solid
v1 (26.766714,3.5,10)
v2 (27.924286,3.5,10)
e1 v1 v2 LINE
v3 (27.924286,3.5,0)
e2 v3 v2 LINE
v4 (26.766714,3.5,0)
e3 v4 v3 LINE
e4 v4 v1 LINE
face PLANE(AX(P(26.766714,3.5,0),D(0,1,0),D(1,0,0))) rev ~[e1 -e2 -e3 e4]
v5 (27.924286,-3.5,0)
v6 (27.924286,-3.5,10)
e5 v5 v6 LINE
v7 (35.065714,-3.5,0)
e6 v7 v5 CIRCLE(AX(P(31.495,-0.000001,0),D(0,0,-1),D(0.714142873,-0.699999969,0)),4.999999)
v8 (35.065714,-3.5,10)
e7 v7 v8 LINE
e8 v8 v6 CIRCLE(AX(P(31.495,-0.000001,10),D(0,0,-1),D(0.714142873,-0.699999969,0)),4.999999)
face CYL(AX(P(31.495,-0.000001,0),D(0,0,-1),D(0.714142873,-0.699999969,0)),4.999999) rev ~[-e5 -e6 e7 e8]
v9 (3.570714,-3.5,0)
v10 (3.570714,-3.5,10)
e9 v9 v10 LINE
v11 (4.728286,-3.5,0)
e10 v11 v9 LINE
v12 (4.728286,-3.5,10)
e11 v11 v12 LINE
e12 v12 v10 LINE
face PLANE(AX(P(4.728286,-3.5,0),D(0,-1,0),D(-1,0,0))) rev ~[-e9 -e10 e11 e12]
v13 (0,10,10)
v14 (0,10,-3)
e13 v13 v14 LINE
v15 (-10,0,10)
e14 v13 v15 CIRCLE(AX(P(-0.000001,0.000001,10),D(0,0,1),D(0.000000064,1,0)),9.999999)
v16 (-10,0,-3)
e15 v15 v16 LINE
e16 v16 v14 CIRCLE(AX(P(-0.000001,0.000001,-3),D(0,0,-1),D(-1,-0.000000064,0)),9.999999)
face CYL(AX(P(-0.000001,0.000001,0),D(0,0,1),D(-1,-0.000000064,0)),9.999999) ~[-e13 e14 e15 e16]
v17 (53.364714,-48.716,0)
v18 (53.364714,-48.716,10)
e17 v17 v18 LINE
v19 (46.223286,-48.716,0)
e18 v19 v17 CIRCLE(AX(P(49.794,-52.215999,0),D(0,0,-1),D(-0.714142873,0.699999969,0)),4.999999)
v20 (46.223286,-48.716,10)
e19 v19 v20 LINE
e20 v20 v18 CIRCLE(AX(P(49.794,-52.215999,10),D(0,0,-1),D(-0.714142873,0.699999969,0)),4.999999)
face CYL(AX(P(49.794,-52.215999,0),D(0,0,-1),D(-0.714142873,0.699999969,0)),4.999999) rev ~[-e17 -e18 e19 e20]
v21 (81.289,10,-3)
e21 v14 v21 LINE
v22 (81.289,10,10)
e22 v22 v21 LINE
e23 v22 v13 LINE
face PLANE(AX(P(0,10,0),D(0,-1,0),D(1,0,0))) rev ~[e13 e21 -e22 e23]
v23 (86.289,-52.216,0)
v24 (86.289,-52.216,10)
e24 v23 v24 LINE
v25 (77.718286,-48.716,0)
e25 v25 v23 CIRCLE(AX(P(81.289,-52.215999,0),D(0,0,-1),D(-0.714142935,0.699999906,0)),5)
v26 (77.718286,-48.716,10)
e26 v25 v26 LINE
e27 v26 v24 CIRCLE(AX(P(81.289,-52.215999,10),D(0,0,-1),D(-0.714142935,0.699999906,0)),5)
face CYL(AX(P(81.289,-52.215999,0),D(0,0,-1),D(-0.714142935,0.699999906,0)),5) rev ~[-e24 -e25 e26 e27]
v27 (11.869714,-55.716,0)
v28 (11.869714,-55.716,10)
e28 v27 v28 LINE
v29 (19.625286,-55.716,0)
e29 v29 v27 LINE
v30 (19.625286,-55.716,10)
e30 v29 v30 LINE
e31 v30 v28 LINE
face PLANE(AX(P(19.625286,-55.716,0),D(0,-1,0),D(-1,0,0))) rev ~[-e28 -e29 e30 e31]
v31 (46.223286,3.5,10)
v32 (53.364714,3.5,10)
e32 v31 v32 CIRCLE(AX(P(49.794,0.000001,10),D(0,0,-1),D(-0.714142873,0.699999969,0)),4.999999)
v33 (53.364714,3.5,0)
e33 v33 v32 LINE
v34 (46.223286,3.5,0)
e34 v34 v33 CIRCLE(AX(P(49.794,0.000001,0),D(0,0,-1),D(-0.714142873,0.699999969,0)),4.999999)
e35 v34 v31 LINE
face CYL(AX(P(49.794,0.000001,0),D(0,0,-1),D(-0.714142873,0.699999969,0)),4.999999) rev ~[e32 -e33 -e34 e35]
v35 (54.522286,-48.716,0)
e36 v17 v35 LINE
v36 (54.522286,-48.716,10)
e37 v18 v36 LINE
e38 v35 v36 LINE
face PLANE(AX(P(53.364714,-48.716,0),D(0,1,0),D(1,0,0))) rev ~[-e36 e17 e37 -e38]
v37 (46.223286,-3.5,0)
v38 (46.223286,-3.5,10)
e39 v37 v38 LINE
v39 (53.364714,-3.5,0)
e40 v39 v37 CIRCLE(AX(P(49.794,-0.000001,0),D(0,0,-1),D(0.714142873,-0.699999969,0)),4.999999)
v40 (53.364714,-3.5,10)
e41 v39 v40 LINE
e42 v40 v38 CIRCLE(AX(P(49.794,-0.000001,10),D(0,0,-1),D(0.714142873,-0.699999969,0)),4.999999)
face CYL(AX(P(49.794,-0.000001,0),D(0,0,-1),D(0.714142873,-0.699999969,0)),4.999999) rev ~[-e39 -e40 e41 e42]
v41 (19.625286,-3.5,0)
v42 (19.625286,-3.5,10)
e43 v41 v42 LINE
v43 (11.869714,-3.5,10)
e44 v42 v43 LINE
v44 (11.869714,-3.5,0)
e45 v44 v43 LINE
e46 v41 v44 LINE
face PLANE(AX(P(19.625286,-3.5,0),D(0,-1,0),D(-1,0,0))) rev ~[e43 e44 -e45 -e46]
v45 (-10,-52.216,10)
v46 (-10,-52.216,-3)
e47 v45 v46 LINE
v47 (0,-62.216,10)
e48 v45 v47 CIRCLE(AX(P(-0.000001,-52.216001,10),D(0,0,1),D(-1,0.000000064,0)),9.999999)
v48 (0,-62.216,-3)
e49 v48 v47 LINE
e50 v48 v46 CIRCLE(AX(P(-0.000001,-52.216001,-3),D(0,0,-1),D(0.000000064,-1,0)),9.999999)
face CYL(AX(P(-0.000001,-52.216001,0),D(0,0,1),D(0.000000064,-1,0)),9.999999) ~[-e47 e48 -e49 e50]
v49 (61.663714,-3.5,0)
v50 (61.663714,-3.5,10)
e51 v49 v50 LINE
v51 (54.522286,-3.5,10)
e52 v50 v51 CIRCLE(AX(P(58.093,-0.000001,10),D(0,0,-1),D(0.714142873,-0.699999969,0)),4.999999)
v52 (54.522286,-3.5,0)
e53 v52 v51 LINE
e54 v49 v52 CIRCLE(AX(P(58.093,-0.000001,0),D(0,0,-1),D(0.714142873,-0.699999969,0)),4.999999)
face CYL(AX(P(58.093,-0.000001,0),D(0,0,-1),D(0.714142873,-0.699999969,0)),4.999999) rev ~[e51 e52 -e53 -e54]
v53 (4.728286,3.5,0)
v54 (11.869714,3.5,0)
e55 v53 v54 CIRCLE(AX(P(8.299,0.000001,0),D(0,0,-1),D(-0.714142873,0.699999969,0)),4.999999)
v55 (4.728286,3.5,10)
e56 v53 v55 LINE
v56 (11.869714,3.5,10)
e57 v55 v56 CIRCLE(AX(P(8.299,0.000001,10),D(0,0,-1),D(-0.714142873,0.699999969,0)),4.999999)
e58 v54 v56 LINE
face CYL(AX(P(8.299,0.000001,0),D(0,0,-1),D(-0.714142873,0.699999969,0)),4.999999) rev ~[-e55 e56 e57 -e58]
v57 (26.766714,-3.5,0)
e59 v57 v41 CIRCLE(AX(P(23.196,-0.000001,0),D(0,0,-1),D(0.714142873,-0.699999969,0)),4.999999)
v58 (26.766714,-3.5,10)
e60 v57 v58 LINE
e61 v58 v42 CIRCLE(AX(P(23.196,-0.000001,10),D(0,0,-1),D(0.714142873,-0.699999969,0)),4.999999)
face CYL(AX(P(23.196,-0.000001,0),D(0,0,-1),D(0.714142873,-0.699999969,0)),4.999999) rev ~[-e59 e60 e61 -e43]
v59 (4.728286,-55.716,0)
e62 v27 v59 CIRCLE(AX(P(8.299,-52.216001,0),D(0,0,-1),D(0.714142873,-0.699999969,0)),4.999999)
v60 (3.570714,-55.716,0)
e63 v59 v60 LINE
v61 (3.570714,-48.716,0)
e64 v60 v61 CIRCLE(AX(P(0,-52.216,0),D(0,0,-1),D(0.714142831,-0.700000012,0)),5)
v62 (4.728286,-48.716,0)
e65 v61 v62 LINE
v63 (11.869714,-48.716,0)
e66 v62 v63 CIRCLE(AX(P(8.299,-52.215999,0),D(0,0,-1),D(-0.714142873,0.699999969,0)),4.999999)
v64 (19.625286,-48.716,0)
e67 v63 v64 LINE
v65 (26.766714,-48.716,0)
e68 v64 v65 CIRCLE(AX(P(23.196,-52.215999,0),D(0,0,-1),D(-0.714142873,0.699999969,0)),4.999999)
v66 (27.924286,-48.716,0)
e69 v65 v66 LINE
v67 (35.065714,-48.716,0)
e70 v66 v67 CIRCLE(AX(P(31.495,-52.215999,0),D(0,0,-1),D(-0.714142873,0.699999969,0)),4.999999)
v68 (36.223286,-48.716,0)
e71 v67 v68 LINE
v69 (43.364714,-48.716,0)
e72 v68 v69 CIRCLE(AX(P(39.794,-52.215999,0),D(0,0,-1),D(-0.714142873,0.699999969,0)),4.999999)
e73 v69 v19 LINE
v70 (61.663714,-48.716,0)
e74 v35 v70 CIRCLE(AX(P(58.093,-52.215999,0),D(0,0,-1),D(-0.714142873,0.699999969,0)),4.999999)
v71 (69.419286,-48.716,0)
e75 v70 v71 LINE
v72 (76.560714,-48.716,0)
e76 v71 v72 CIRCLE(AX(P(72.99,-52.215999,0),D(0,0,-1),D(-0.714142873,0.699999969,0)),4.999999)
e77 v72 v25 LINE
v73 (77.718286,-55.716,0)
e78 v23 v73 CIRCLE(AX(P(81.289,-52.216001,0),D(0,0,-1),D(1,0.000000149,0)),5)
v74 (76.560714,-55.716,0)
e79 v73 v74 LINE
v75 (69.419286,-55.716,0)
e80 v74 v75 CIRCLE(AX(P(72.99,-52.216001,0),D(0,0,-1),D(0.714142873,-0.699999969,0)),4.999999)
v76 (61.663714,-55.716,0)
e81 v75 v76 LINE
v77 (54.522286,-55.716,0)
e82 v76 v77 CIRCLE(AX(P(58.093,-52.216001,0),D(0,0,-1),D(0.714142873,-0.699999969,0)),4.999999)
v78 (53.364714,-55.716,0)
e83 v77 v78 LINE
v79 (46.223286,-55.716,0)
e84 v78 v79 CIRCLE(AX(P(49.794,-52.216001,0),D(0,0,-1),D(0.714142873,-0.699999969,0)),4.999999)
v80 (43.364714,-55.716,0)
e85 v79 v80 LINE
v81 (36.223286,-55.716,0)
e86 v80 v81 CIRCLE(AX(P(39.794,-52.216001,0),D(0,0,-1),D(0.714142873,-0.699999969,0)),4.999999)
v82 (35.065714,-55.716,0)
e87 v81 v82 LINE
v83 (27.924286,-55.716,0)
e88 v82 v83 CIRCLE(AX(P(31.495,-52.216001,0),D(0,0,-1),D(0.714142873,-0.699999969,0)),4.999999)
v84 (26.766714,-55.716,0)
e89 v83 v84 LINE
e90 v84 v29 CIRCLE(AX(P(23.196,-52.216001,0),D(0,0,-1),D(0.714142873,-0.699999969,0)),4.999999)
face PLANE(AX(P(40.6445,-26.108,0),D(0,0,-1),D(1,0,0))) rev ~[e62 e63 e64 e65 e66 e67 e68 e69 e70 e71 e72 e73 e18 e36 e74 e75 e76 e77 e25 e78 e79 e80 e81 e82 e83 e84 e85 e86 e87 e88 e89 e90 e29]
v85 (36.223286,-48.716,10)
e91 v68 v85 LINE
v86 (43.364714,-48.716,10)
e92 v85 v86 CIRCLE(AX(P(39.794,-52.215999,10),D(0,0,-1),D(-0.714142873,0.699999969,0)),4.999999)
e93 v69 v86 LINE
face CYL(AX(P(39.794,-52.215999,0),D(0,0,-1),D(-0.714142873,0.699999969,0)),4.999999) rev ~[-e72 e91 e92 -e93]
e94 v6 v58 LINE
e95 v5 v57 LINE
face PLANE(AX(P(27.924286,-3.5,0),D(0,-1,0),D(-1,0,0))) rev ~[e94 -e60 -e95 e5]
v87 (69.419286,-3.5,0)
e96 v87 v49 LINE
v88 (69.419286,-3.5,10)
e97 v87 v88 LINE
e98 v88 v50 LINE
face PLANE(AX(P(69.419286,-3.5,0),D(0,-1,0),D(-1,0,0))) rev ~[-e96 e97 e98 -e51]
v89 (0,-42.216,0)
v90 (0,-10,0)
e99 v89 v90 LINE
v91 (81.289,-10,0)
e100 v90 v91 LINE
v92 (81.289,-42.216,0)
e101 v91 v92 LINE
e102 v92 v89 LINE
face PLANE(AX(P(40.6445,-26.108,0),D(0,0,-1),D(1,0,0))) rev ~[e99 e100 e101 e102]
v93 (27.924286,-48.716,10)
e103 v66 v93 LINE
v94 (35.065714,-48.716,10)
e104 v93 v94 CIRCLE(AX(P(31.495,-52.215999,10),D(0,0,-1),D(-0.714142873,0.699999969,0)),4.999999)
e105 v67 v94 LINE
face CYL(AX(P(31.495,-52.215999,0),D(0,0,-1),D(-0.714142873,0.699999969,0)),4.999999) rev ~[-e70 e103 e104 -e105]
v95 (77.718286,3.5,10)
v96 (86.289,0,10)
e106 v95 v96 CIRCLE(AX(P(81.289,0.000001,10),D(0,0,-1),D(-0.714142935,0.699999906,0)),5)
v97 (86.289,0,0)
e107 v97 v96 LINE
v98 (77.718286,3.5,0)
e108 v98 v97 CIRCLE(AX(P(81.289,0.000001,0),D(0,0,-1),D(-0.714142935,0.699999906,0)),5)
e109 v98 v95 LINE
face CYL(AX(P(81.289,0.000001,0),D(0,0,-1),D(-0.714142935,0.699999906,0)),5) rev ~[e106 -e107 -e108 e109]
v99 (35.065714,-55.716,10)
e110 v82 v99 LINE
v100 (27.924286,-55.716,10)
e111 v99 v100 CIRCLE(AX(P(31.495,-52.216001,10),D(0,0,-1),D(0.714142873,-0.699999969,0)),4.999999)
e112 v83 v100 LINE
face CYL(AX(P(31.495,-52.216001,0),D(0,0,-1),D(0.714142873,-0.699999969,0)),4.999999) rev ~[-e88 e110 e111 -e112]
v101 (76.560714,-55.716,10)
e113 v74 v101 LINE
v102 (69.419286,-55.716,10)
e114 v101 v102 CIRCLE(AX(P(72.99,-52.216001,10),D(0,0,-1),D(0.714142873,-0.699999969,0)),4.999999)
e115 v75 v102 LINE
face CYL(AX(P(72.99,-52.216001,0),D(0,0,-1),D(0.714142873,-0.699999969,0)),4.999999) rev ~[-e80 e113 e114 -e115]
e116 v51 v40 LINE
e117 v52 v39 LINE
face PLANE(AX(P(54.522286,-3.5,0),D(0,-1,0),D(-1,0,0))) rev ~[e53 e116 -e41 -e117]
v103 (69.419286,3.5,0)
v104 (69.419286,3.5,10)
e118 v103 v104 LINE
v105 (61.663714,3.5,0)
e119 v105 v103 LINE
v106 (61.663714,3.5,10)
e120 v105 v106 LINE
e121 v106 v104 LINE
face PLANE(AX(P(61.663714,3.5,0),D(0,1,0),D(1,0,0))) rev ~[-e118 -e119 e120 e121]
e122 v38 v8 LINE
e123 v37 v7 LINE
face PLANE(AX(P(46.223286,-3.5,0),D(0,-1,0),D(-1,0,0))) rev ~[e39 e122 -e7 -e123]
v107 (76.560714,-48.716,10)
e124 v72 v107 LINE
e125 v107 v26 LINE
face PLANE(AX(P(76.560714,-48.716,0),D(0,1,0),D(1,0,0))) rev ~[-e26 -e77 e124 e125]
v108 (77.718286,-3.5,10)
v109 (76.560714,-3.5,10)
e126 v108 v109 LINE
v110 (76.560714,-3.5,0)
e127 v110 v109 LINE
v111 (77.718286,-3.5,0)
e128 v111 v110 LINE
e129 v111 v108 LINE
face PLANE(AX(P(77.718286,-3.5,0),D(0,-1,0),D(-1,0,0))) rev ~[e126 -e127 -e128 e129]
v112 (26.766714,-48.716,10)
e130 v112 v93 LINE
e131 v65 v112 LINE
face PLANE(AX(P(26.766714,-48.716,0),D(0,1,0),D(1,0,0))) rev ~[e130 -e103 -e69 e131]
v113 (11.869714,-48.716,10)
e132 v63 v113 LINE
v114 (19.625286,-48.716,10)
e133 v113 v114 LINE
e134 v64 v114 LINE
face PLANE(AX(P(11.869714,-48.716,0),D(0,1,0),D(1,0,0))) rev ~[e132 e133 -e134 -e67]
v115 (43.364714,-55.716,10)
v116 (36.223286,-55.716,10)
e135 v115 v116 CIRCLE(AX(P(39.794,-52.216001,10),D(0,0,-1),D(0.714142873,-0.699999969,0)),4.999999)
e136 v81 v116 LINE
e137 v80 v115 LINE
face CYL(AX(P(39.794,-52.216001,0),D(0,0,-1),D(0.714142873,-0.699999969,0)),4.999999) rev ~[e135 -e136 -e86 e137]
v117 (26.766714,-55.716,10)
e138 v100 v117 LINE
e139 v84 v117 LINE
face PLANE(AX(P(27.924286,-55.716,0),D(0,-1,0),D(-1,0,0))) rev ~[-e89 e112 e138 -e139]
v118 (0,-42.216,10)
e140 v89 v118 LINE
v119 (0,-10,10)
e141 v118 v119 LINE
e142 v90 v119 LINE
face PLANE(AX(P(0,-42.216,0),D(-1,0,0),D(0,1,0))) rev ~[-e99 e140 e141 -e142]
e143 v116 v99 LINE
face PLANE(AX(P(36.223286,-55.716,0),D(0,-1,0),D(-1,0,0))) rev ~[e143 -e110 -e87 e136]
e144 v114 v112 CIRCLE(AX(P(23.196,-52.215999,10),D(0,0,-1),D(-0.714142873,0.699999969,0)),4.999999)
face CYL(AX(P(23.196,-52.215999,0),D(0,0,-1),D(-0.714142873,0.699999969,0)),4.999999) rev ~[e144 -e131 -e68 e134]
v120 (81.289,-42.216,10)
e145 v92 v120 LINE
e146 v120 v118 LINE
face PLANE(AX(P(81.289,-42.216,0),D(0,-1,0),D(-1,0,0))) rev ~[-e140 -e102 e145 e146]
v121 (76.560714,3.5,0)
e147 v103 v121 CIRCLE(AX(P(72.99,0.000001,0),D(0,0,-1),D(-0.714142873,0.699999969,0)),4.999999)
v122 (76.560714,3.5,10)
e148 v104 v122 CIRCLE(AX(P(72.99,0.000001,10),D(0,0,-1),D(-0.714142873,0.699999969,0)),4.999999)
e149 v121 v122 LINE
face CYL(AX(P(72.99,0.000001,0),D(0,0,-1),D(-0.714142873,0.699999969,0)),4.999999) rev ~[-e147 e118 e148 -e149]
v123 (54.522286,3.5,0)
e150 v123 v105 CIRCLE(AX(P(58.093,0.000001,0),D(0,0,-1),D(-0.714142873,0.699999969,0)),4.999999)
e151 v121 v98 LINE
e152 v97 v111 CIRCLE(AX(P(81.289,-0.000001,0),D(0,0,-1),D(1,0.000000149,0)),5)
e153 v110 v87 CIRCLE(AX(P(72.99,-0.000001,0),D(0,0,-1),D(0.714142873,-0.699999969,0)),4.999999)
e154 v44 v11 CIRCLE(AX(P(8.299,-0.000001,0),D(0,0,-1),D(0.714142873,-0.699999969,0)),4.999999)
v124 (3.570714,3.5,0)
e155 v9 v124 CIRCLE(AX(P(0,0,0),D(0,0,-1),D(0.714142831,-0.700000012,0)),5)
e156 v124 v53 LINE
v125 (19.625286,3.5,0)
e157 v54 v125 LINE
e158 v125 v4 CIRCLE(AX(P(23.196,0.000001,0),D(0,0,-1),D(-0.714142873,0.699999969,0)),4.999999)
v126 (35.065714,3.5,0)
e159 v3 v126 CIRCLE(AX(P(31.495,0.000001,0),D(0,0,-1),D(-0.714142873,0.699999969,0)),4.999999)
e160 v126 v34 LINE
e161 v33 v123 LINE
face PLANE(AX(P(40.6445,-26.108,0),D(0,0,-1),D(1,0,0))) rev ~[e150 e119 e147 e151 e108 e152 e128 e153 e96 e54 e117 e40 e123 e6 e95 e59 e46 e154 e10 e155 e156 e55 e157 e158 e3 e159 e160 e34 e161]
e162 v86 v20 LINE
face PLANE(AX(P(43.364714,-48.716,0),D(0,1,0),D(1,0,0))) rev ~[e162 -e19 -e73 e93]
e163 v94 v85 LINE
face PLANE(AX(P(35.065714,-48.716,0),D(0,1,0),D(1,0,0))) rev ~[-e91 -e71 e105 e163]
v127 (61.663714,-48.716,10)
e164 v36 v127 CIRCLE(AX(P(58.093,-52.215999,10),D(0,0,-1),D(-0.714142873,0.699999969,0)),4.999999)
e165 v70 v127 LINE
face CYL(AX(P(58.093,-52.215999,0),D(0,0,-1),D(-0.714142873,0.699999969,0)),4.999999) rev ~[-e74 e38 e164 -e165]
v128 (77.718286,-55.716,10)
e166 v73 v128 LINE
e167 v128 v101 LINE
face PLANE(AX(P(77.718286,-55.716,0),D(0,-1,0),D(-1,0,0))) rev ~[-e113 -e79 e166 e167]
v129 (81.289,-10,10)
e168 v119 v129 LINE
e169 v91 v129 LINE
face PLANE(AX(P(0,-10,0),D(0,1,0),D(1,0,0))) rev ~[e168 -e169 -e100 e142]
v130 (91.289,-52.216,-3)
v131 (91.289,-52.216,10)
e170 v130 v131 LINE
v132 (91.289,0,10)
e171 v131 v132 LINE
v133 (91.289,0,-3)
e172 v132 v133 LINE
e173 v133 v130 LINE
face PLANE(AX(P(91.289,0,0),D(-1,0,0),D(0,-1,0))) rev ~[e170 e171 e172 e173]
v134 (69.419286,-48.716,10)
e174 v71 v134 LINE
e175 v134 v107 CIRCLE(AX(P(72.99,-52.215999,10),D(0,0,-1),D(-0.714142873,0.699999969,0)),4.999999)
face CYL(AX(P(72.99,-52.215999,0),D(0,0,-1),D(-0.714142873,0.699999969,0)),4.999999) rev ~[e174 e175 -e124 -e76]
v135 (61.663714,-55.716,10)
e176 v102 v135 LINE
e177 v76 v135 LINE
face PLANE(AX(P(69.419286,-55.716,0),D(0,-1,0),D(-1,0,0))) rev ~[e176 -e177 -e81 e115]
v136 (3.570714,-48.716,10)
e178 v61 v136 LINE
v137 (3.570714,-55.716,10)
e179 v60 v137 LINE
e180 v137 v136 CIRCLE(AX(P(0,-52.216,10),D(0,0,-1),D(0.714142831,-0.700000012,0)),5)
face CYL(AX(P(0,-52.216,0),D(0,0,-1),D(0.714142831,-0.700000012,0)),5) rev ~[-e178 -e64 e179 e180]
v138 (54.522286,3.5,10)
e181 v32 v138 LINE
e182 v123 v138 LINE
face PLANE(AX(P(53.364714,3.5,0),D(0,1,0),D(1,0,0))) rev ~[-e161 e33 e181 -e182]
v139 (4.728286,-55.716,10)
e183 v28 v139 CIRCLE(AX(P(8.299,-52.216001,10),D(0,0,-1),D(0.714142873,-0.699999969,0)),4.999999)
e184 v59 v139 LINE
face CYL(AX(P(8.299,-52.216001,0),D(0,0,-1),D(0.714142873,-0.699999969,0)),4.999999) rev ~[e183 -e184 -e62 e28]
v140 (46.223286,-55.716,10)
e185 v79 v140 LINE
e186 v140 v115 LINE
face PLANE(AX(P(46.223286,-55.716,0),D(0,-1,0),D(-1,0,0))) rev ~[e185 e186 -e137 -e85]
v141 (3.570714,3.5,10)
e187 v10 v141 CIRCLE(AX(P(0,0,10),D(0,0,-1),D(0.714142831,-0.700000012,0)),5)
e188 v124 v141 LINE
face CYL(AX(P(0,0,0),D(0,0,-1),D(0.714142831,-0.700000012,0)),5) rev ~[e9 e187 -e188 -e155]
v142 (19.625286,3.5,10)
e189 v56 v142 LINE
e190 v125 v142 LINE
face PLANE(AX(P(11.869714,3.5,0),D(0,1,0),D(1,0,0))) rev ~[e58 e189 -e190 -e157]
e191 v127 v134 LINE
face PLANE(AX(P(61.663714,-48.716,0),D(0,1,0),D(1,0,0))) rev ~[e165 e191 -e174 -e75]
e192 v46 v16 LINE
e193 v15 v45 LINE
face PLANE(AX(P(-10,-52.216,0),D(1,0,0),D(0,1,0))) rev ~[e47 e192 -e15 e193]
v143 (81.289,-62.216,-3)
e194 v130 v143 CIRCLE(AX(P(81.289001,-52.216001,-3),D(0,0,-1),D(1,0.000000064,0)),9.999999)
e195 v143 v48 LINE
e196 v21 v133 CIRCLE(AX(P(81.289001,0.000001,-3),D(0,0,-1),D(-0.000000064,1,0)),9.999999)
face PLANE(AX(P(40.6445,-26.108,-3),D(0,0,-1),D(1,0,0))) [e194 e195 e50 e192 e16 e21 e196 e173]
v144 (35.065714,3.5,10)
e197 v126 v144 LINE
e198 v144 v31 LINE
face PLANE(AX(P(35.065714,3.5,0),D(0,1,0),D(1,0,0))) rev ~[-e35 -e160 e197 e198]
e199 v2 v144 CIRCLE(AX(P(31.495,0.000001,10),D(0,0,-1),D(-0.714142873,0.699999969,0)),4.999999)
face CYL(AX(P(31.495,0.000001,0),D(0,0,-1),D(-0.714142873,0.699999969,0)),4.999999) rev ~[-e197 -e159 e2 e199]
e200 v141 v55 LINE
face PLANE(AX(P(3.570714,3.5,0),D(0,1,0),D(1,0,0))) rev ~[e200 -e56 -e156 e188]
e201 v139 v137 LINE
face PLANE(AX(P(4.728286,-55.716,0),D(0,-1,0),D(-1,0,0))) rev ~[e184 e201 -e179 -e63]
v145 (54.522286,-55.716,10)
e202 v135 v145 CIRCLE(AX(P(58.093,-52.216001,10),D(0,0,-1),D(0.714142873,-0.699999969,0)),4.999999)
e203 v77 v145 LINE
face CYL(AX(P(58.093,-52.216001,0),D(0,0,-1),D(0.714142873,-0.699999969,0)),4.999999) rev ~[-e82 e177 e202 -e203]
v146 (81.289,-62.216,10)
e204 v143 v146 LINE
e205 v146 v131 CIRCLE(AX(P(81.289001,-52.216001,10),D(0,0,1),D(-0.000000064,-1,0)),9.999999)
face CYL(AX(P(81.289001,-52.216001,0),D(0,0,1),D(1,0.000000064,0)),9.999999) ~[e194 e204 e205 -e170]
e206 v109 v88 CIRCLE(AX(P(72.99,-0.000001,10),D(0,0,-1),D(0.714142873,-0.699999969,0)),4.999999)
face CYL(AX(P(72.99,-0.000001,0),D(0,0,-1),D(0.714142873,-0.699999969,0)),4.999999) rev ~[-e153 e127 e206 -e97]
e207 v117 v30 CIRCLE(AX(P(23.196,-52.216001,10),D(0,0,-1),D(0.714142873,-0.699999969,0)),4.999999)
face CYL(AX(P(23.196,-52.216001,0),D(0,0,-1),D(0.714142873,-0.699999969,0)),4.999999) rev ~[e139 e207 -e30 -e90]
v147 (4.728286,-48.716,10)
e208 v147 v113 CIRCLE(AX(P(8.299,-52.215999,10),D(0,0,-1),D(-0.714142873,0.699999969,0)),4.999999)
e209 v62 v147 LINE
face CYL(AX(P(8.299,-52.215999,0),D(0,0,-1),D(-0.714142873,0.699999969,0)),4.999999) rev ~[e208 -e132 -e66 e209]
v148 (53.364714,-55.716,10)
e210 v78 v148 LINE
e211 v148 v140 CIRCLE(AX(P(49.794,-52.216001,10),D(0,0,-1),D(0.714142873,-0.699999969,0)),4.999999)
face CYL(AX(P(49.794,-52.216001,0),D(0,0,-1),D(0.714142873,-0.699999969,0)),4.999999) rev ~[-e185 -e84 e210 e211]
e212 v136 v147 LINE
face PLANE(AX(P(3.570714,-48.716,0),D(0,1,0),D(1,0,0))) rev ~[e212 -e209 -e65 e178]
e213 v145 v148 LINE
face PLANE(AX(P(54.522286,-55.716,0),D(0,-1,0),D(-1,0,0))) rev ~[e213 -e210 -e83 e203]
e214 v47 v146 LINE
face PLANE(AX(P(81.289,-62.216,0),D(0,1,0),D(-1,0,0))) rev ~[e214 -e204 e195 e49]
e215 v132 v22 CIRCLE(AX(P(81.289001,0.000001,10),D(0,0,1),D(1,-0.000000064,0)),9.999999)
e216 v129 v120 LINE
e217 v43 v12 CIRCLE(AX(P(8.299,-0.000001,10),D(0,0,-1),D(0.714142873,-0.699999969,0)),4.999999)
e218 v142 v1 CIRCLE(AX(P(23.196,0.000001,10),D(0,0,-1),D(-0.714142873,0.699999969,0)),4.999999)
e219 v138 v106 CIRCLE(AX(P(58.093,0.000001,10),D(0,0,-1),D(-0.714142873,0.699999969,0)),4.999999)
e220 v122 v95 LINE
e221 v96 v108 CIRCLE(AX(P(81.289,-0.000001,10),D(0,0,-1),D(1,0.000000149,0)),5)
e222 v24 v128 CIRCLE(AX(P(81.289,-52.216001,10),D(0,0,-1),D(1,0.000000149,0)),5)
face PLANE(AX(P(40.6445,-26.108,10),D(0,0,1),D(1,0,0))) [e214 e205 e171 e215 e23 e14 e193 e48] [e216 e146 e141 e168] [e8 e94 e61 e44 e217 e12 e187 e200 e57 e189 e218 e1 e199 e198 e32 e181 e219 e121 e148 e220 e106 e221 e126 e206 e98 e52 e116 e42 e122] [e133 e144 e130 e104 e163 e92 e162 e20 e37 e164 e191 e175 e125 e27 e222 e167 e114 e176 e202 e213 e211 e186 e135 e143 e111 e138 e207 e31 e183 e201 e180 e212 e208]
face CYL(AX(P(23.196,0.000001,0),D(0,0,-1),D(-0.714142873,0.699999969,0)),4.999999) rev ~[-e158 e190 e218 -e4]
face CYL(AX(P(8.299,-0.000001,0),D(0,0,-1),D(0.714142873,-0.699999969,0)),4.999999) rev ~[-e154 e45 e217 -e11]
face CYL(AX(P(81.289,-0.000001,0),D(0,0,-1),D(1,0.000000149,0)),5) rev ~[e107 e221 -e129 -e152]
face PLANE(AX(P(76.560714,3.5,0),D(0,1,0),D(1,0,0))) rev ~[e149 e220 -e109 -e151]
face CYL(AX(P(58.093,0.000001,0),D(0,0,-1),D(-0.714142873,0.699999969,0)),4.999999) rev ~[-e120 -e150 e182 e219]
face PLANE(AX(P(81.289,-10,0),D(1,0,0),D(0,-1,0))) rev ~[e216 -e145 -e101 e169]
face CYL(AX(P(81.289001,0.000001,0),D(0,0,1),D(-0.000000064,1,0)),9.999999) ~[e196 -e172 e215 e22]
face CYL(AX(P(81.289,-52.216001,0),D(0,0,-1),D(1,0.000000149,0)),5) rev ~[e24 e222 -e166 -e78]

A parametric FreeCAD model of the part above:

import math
import FreeCAD as App
import Part
import Sketcher
from FreeCAD import Vector
Q = App.Units.Quantity


def add_polygon(sketch, points):
    """Adds a closed chain of lines whose ends are joined by coincident constraints."""
    first, n = sketch.GeometryCount, len(points)
    for a, b in zip(points, points[1:] + points[:1]):
        sketch.addGeometry(Part.LineSegment(App.Vector(*a, 0), App.Vector(*b, 0)), False)
    for i in range(n):
        sketch.addConstraint(Sketcher.Constraint("Coincident", first + i, 2, first + (i + 1) % n, 1))

doc = App.newDocument("Part")
body = doc.addObject("PartDesign::Body", "Body")

# Sketch on XY plane
sketch1 = doc.addObject("Sketcher::SketchObject", "Sketch")
body.addObject(sketch1)
sketch1.AttachmentSupport = (doc.XY_Plane, [""])
sketch1.MapMode = "FlatFace"
sketch1.addGeometry(Part.LineSegment(Vector(81.289, 10, 0), Vector(0, 10, 0)), False)  # 0
sketch1.addGeometry(Part.ArcOfCircle(Part.Circle(Vector(-0.000001, 0.000001, 0), Vector(0, 0, 1), 9.999999), math.radians(89.999996), math.radians(180.000004)), False)  # 1
sketch1.addGeometry(Part.LineSegment(Vector(-10, 0, 0), Vector(-10, -52.216, 0)), False)  # 2
sketch1.addGeometry(Part.ArcOfCircle(Part.Circle(Vector(-0.000001, -52.216001, 0), Vector(0, 0, 1), 9.999999), math.radians(179.999996), math.radians(270.000004)), False)  # 3
sketch1.addGeometry(Part.LineSegment(Vector(0, -62.216, 0), Vector(81.289, -62.216, 0)), False)  # 4
sketch1.addGeometry(Part.ArcOfCircle(Part.Circle(Vector(81.289001, -52.216001, 0), Vector(0, 0, 1), 9.999999), math.radians(-90.000004), math.radians(0.000004)), False)  # 5
sketch1.addGeometry(Part.LineSegment(Vector(91.289, -52.216, 0), Vector(91.289, 0, 0)), False)  # 6
sketch1.addGeometry(Part.ArcOfCircle(Part.Circle(Vector(81.289001, 0.000001, 0), Vector(0, 0, 1), 9.999999), math.radians(-0.000004), math.radians(90.000004)), False)  # 7
sketch1.addGeometry(Part.LineSegment(Vector(4.728286, -55.716, 0), Vector(3.570714, -55.716, 0)), False)  # 8
sketch1.addGeometry(Part.ArcOfCircle(Part.Circle(Vector(0, -52.216, 0), Vector(0, 0, 1), 5), math.radians(44.427005), math.radians(315.572995)), False)  # 9
sketch1.addGeometry(Part.LineSegment(Vector(3.570714, -48.716, 0), Vector(4.728286, -48.716, 0)), False)  # 10
sketch1.addGeometry(Part.ArcOfCircle(Part.Circle(Vector(8.299, -52.215999, 0), Vector(0, 0, 1), 4.999999), math.radians(44.427002), math.radians(135.572998)), False)  # 11
sketch1.addGeometry(Part.LineSegment(Vector(11.869714, -48.716, 0), Vector(19.625286, -48.716, 0)), False)  # 12
sketch1.addGeometry(Part.ArcOfCircle(Part.Circle(Vector(23.196, -52.215999, 0), Vector(0, 0, 1), 4.999999), math.radians(44.427002), math.radians(135.572998)), False)  # 13
sketch1.addGeometry(Part.LineSegment(Vector(26.766714, -48.716, 0), Vector(27.924286, -48.716, 0)), False)  # 14
sketch1.addGeometry(Part.ArcOfCircle(Part.Circle(Vector(31.495, -52.215999, 0), Vector(0, 0, 1), 4.999999), math.radians(44.427002), math.radians(135.572998)), False)  # 15
sketch1.addGeometry(Part.LineSegment(Vector(35.065714, -48.716, 0), Vector(36.223286, -48.716, 0)), False)  # 16
sketch1.addGeometry(Part.ArcOfCircle(Part.Circle(Vector(39.794, -52.215999, 0), Vector(0, 0, 1), 4.999999), math.radians(44.427002), math.radians(135.572998)), False)  # 17
sketch1.addGeometry(Part.LineSegment(Vector(43.364714, -48.716, 0), Vector(46.223286, -48.716, 0)), False)  # 18
sketch1.addGeometry(Part.ArcOfCircle(Part.Circle(Vector(49.794, -52.215999, 0), Vector(0, 0, 1), 4.999999), math.radians(44.427002), math.radians(135.572998)), False)  # 19
sketch1.addGeometry(Part.LineSegment(Vector(53.364714, -48.716, 0), Vector(54.522286, -48.716, 0)), False)  # 20
sketch1.addGeometry(Part.ArcOfCircle(Part.Circle(Vector(58.093, -52.215999, 0), Vector(0, 0, 1), 4.999999), math.radians(44.427002), math.radians(135.572998)), False)  # 21
sketch1.addGeometry(Part.LineSegment(Vector(61.663714, -48.716, 0), Vector(69.419286, -48.716, 0)), False)  # 22
sketch1.addGeometry(Part.ArcOfCircle(Part.Circle(Vector(72.99, -52.215999, 0), Vector(0, 0, 1), 4.999999), math.radians(44.427002), math.radians(135.572998)), False)  # 23
sketch1.addGeometry(Part.LineSegment(Vector(76.560714, -48.716, 0), Vector(77.718286, -48.716, 0)), False)  # 24
sketch1.addGeometry(Part.ArcOfCircle(Part.Circle(Vector(81.289, -52.215999, 0), Vector(0, 0, 1), 5), math.radians(-0.000009), math.radians(135.573004)), False)  # 25
sketch1.addGeometry(Part.ArcOfCircle(Part.Circle(Vector(81.289, -52.216001, 0), Vector(0, 0, 1), 5), math.radians(-135.573004), math.radians(0.000009)), False)  # 26
sketch1.addGeometry(Part.LineSegment(Vector(77.718286, -55.716, 0), Vector(76.560714, -55.716, 0)), False)  # 27
sketch1.addGeometry(Part.ArcOfCircle(Part.Circle(Vector(72.99, -52.216001, 0), Vector(0, 0, 1), 4.999999), math.radians(-135.572998), math.radians(-44.427002)), False)  # 28
sketch1.addGeometry(Part.LineSegment(Vector(69.419286, -55.716, 0), Vector(61.663714, -55.716, 0)), False)  # 29
sketch1.addGeometry(Part.ArcOfCircle(Part.Circle(Vector(58.093, -52.216001, 0), Vector(0, 0, 1), 4.999999), math.radians(-135.572998), math.radians(-44.427002)), False)  # 30
sketch1.addGeometry(Part.LineSegment(Vector(54.522286, -55.716, 0), Vector(53.364714, -55.716, 0)), False)  # 31
sketch1.addGeometry(Part.ArcOfCircle(Part.Circle(Vector(49.794, -52.216001, 0), Vector(0, 0, 1), 4.999999), math.radians(-135.572998), math.radians(-44.427002)), False)  # 32
sketch1.addGeometry(Part.LineSegment(Vector(46.223286, -55.716, 0), Vector(43.364714, -55.716, 0)), False)  # 33
sketch1.addGeometry(Part.ArcOfCircle(Part.Circle(Vector(39.794, -52.216001, 0), Vector(0, 0, 1), 4.999999), math.radians(-135.572998), math.radians(-44.427002)), False)  # 34
sketch1.addGeometry(Part.LineSegment(Vector(36.223286, -55.716, 0), Vector(35.065714, -55.716, 0)), False)  # 35
sketch1.addGeometry(Part.ArcOfCircle(Part.Circle(Vector(31.495, -52.216001, 0), Vector(0, 0, 1), 4.999999), math.radians(-135.572998), math.radians(-44.427002)), False)  # 36
sketch1.addGeometry(Part.LineSegment(Vector(27.924286, -55.716, 0), Vector(26.766714, -55.716, 0)), False)  # 37
sketch1.addGeometry(Part.ArcOfCircle(Part.Circle(Vector(23.196, -52.216001, 0), Vector(0, 0, 1), 4.999999), math.radians(-135.572998), math.radians(-44.427002)), False)  # 38
sketch1.addGeometry(Part.LineSegment(Vector(19.625286, -55.716, 0), Vector(11.869714, -55.716, 0)), False)  # 39
sketch1.addGeometry(Part.ArcOfCircle(Part.Circle(Vector(8.299, -52.216001, 0), Vector(0, 0, 1), 4.999999), math.radians(-135.572998), math.radians(-44.427002)), False)  # 40
add_polygon(sketch1, [(81.289, -42.216), (0, -42.216), (0, -10), (81.289, -10)])  # lines 41-44
sketch1.addGeometry(Part.LineSegment(Vector(4.728286, -3.5, 0), Vector(3.570714, -3.5, 0)), False)  # 45
sketch1.addGeometry(Part.ArcOfCircle(Part.Circle(Vector(0, 0, 0), Vector(0, 0, 1), 5), math.radians(44.427005), math.radians(315.572995)), False)  # 46
sketch1.addGeometry(Part.LineSegment(Vector(3.570714, 3.5, 0), Vector(4.728286, 3.5, 0)), False)  # 47
sketch1.addGeometry(Part.ArcOfCircle(Part.Circle(Vector(8.299, 0.000001, 0), Vector(0, 0, 1), 4.999999), math.radians(44.427002), math.radians(135.572998)), False)  # 48
sketch1.addGeometry(Part.LineSegment(Vector(11.869714, 3.5, 0), Vector(19.625286, 3.5, 0)), False)  # 49
sketch1.addGeometry(Part.ArcOfCircle(Part.Circle(Vector(23.196, 0.000001, 0), Vector(0, 0, 1), 4.999999), math.radians(44.427002), math.radians(135.572998)), False)  # 50
sketch1.addGeometry(Part.LineSegment(Vector(26.766714, 3.5, 0), Vector(27.924286, 3.5, 0)), False)  # 51
sketch1.addGeometry(Part.ArcOfCircle(Part.Circle(Vector(31.495, 0.000001, 0), Vector(0, 0, 1), 4.999999), math.radians(44.427002), math.radians(135.572998)), False)  # 52
sketch1.addGeometry(Part.LineSegment(Vector(35.065714, 3.5, 0), Vector(46.223286, 3.5, 0)), False)  # 53
sketch1.addGeometry(Part.ArcOfCircle(Part.Circle(Vector(49.794, 0.000001, 0), Vector(0, 0, 1), 4.999999), math.radians(44.427002), math.radians(135.572998)), False)  # 54
sketch1.addGeometry(Part.LineSegment(Vector(53.364714, 3.5, 0), Vector(54.522286, 3.5, 0)), False)  # 55
sketch1.addGeometry(Part.ArcOfCircle(Part.Circle(Vector(58.093, 0.000001, 0), Vector(0, 0, 1), 4.999999), math.radians(44.427002), math.radians(135.572998)), False)  # 56
sketch1.addGeometry(Part.LineSegment(Vector(61.663714, 3.5, 0), Vector(69.419286, 3.5, 0)), False)  # 57
sketch1.addGeometry(Part.ArcOfCircle(Part.Circle(Vector(72.99, 0.000001, 0), Vector(0, 0, 1), 4.999999), math.radians(44.427002), math.radians(135.572998)), False)  # 58
sketch1.addGeometry(Part.LineSegment(Vector(76.560714, 3.5, 0), Vector(77.718286, 3.5, 0)), False)  # 59
sketch1.addGeometry(Part.ArcOfCircle(Part.Circle(Vector(81.289, 0.000001, 0), Vector(0, 0, 1), 5), math.radians(-0.000009), math.radians(135.573004)), False)  # 60
sketch1.addGeometry(Part.ArcOfCircle(Part.Circle(Vector(81.289, -0.000001, 0), Vector(0, 0, 1), 5), math.radians(-135.573004), math.radians(0.000009)), False)  # 61
sketch1.addGeometry(Part.LineSegment(Vector(77.718286, -3.5, 0), Vector(76.560714, -3.5, 0)), False)  # 62
sketch1.addGeometry(Part.ArcOfCircle(Part.Circle(Vector(72.99, -0.000001, 0), Vector(0, 0, 1), 4.999999), math.radians(-135.572998), math.radians(-44.427002)), False)  # 63
sketch1.addGeometry(Part.LineSegment(Vector(69.419286, -3.5, 0), Vector(61.663714, -3.5, 0)), False)  # 64
sketch1.addGeometry(Part.ArcOfCircle(Part.Circle(Vector(58.093, -0.000001, 0), Vector(0, 0, 1), 4.999999), math.radians(-135.572998), math.radians(-44.427002)), False)  # 65
sketch1.addGeometry(Part.LineSegment(Vector(54.522286, -3.5, 0), Vector(53.364714, -3.5, 0)), False)  # 66
sketch1.addGeometry(Part.ArcOfCircle(Part.Circle(Vector(49.794, -0.000001, 0), Vector(0, 0, 1), 4.999999), math.radians(-135.572998), math.radians(-44.427002)), False)  # 67
sketch1.addGeometry(Part.LineSegment(Vector(46.223286, -3.5, 0), Vector(35.065714, -3.5, 0)), False)  # 68
sketch1.addGeometry(Part.ArcOfCircle(Part.Circle(Vector(31.495, -0.000001, 0), Vector(0, 0, 1), 4.999999), math.radians(-135.572998), math.radians(-44.427002)), False)  # 69
sketch1.addGeometry(Part.LineSegment(Vector(27.924286, -3.5, 0), Vector(26.766714, -3.5, 0)), False)  # 70
sketch1.addGeometry(Part.ArcOfCircle(Part.Circle(Vector(23.196, -0.000001, 0), Vector(0, 0, 1), 4.999999), math.radians(-135.572998), math.radians(-44.427002)), False)  # 71
sketch1.addGeometry(Part.LineSegment(Vector(19.625286, -3.5, 0), Vector(11.869714, -3.5, 0)), False)  # 72
sketch1.addGeometry(Part.ArcOfCircle(Part.Circle(Vector(8.299, -0.000001, 0), Vector(0, 0, 1), 4.999999), math.radians(-135.572998), math.radians(-44.427002)), False)  # 73
sketch1.addConstraint(Sketcher.Constraint("Tangent", 0, 2, 1, 1))
sketch1.addConstraint(Sketcher.Constraint("Tangent", 1, 2, 2, 1))
sketch1.addConstraint(Sketcher.Constraint("Tangent", 2, 2, 3, 1))
sketch1.addConstraint(Sketcher.Constraint("Tangent", 3, 2, 4, 1))
sketch1.addConstraint(Sketcher.Constraint("Tangent", 4, 2, 5, 1))
sketch1.addConstraint(Sketcher.Constraint("Tangent", 5, 2, 6, 1))
sketch1.addConstraint(Sketcher.Constraint("Tangent", 6, 2, 7, 1))
sketch1.addConstraint(Sketcher.Constraint("Tangent", 7, 2, 0, 1))
sketch1.addConstraint(Sketcher.Constraint("Coincident", 8, 2, 9, 2))
sketch1.addConstraint(Sketcher.Constraint("Coincident", 9, 1, 10, 1))
sketch1.addConstraint(Sketcher.Constraint("Coincident", 10, 2, 11, 2))
sketch1.addConstraint(Sketcher.Constraint("Coincident", 11, 1, 12, 1))
sketch1.addConstraint(Sketcher.Constraint("Coincident", 12, 2, 13, 2))
sketch1.addConstraint(Sketcher.Constraint("Coincident", 13, 1, 14, 1))
sketch1.addConstraint(Sketcher.Constraint("Coincident", 14, 2, 15, 2))
sketch1.addConstraint(Sketcher.Constraint("Coincident", 15, 1, 16, 1))
sketch1.addConstraint(Sketcher.Constraint("Coincident", 16, 2, 17, 2))
sketch1.addConstraint(Sketcher.Constraint("Coincident", 17, 1, 18, 1))
sketch1.addConstraint(Sketcher.Constraint("Coincident", 18, 2, 19, 2))
sketch1.addConstraint(Sketcher.Constraint("Coincident", 19, 1, 20, 1))
sketch1.addConstraint(Sketcher.Constraint("Coincident", 20, 2, 21, 2))
sketch1.addConstraint(Sketcher.Constraint("Coincident", 21, 1, 22, 1))
sketch1.addConstraint(Sketcher.Constraint("Coincident", 22, 2, 23, 2))
sketch1.addConstraint(Sketcher.Constraint("Coincident", 23, 1, 24, 1))
sketch1.addConstraint(Sketcher.Constraint("Coincident", 24, 2, 25, 2))
sketch1.addConstraint(Sketcher.Constraint("Tangent", 25, 1, 26, 2))
sketch1.addConstraint(Sketcher.Constraint("Coincident", 26, 1, 27, 1))
sketch1.addConstraint(Sketcher.Constraint("Coincident", 27, 2, 28, 2))
sketch1.addConstraint(Sketcher.Constraint("Coincident", 28, 1, 29, 1))
sketch1.addConstraint(Sketcher.Constraint("Coincident", 29, 2, 30, 2))
sketch1.addConstraint(Sketcher.Constraint("Coincident", 30, 1, 31, 1))
sketch1.addConstraint(Sketcher.Constraint("Coincident", 31, 2, 32, 2))
sketch1.addConstraint(Sketcher.Constraint("Coincident", 32, 1, 33, 1))
sketch1.addConstraint(Sketcher.Constraint("Coincident", 33, 2, 34, 2))
sketch1.addConstraint(Sketcher.Constraint("Coincident", 34, 1, 35, 1))
sketch1.addConstraint(Sketcher.Constraint("Coincident", 35, 2, 36, 2))
sketch1.addConstraint(Sketcher.Constraint("Coincident", 36, 1, 37, 1))
sketch1.addConstraint(Sketcher.Constraint("Coincident", 37, 2, 38, 2))
sketch1.addConstraint(Sketcher.Constraint("Coincident", 38, 1, 39, 1))
sketch1.addConstraint(Sketcher.Constraint("Coincident", 39, 2, 40, 2))
sketch1.addConstraint(Sketcher.Constraint("Coincident", 40, 1, 8, 1))
sketch1.addConstraint(Sketcher.Constraint("Coincident", 45, 2, 46, 2))
sketch1.addConstraint(Sketcher.Constraint("Coincident", 46, 1, 47, 1))
sketch1.addConstraint(Sketcher.Constraint("Coincident", 47, 2, 48, 2))
sketch1.addConstraint(Sketcher.Constraint("Coincident", 48, 1, 49, 1))
sketch1.addConstraint(Sketcher.Constraint("Coincident", 49, 2, 50, 2))
sketch1.addConstraint(Sketcher.Constraint("Coincident", 50, 1, 51, 1))
sketch1.addConstraint(Sketcher.Constraint("Coincident", 51, 2, 52, 2))
sketch1.addConstraint(Sketcher.Constraint("Coincident", 52, 1, 53, 1))
sketch1.addConstraint(Sketcher.Constraint("Coincident", 53, 2, 54, 2))
sketch1.addConstraint(Sketcher.Constraint("Coincident", 54, 1, 55, 1))
sketch1.addConstraint(Sketcher.Constraint("Coincident", 55, 2, 56, 2))
sketch1.addConstraint(Sketcher.Constraint("Coincident", 56, 1, 57, 1))
sketch1.addConstraint(Sketcher.Constraint("Coincident", 57, 2, 58, 2))
sketch1.addConstraint(Sketcher.Constraint("Coincident", 58, 1, 59, 1))
sketch1.addConstraint(Sketcher.Constraint("Coincident", 59, 2, 60, 2))
sketch1.addConstraint(Sketcher.Constraint("Tangent", 60, 1, 61, 2))
sketch1.addConstraint(Sketcher.Constraint("Coincident", 61, 1, 62, 1))
sketch1.addConstraint(Sketcher.Constraint("Coincident", 62, 2, 63, 2))
sketch1.addConstraint(Sketcher.Constraint("Coincident", 63, 1, 64, 1))
sketch1.addConstraint(Sketcher.Constraint("Coincident", 64, 2, 65, 2))
sketch1.addConstraint(Sketcher.Constraint("Coincident", 65, 1, 66, 1))
sketch1.addConstraint(Sketcher.Constraint("Coincident", 66, 2, 67, 2))
sketch1.addConstraint(Sketcher.Constraint("Coincident", 67, 1, 68, 1))
sketch1.addConstraint(Sketcher.Constraint("Coincident", 68, 2, 69, 2))
sketch1.addConstraint(Sketcher.Constraint("Coincident", 69, 1, 70, 1))
sketch1.addConstraint(Sketcher.Constraint("Coincident", 70, 2, 71, 2))
sketch1.addConstraint(Sketcher.Constraint("Coincident", 71, 1, 72, 1))
sketch1.addConstraint(Sketcher.Constraint("Coincident", 72, 2, 73, 2))
sketch1.addConstraint(Sketcher.Constraint("Coincident", 73, 1, 45, 1))
sketch1.addConstraint(Sketcher.Constraint("Horizontal", 0))
sketch1.addConstraint(Sketcher.Constraint("Vertical", 2))
sketch1.addConstraint(Sketcher.Constraint("Horizontal", 4))
sketch1.addConstraint(Sketcher.Constraint("Vertical", 6))
sketch1.addConstraint(Sketcher.Constraint("Horizontal", 8))
sketch1.addConstraint(Sketcher.Constraint("Horizontal", 10))
sketch1.addConstraint(Sketcher.Constraint("Horizontal", 12))
sketch1.addConstraint(Sketcher.Constraint("Horizontal", 14))
sketch1.addConstraint(Sketcher.Constraint("Horizontal", 16))
sketch1.addConstraint(Sketcher.Constraint("Horizontal", 18))
sketch1.addConstraint(Sketcher.Constraint("Horizontal", 20))
sketch1.addConstraint(Sketcher.Constraint("Horizontal", 22))
sketch1.addConstraint(Sketcher.Constraint("Horizontal", 24))
sketch1.addConstraint(Sketcher.Constraint("Horizontal", 27))
sketch1.addConstraint(Sketcher.Constraint("Horizontal", 29))
sketch1.addConstraint(Sketcher.Constraint("Horizontal", 31))
sketch1.addConstraint(Sketcher.Constraint("Horizontal", 33))
sketch1.addConstraint(Sketcher.Constraint("Horizontal", 35))
sketch1.addConstraint(Sketcher.Constraint("Horizontal", 37))
sketch1.addConstraint(Sketcher.Constraint("Horizontal", 39))
sketch1.addConstraint(Sketcher.Constraint("Horizontal", 41))
sketch1.addConstraint(Sketcher.Constraint("Vertical", 42))
sketch1.addConstraint(Sketcher.Constraint("Horizontal", 43))
sketch1.addConstraint(Sketcher.Constraint("Vertical", 44))
sketch1.addConstraint(Sketcher.Constraint("Horizontal", 45))
sketch1.addConstraint(Sketcher.Constraint("Horizontal", 47))
sketch1.addConstraint(Sketcher.Constraint("Horizontal", 49))
sketch1.addConstraint(Sketcher.Constraint("Horizontal", 51))
sketch1.addConstraint(Sketcher.Constraint("Horizontal", 53))
sketch1.addConstraint(Sketcher.Constraint("Horizontal", 55))
sketch1.addConstraint(Sketcher.Constraint("Horizontal", 57))
sketch1.addConstraint(Sketcher.Constraint("Horizontal", 59))
sketch1.addConstraint(Sketcher.Constraint("Horizontal", 62))
sketch1.addConstraint(Sketcher.Constraint("Horizontal", 64))
sketch1.addConstraint(Sketcher.Constraint("Horizontal", 66))
sketch1.addConstraint(Sketcher.Constraint("Horizontal", 68))
sketch1.addConstraint(Sketcher.Constraint("Horizontal", 70))
sketch1.addConstraint(Sketcher.Constraint("Horizontal", 72))
sketch1.addConstraint(Sketcher.Constraint("Coincident", 1, 3, -1, 1))
sketch1.addConstraint(Sketcher.Constraint("Coincident", 46, 3, -1, 1))
sketch1.addConstraint(Sketcher.Constraint("Coincident", 9, 3, 3, 3))
sketch1.addConstraint(Sketcher.Constraint("Coincident", 25, 3, 5, 3))
sketch1.addConstraint(Sketcher.Constraint("Coincident", 28, 3, 23, 3))
sketch1.addConstraint(Sketcher.Constraint("Coincident", 30, 3, 21, 3))
sketch1.addConstraint(Sketcher.Constraint("Coincident", 32, 3, 19, 3))
sketch1.addConstraint(Sketcher.Constraint("Coincident", 34, 3, 17, 3))
sketch1.addConstraint(Sketcher.Constraint("Coincident", 36, 3, 15, 3))
sketch1.addConstraint(Sketcher.Constraint("Coincident", 38, 3, 13, 3))
sketch1.addConstraint(Sketcher.Constraint("Coincident", 40, 3, 11, 3))
sketch1.addConstraint(Sketcher.Constraint("Coincident", 60, 3, 7, 3))
sketch1.addConstraint(Sketcher.Constraint("Coincident", 63, 3, 58, 3))
sketch1.addConstraint(Sketcher.Constraint("Coincident", 65, 3, 56, 3))
sketch1.addConstraint(Sketcher.Constraint("Coincident", 67, 3, 54, 3))
sketch1.addConstraint(Sketcher.Constraint("Coincident", 69, 3, 52, 3))
sketch1.addConstraint(Sketcher.Constraint("Coincident", 71, 3, 50, 3))
sketch1.addConstraint(Sketcher.Constraint("Coincident", 73, 3, 48, 3))
sketch1.addConstraint(Sketcher.Constraint("Equal", 1, 3))
sketch1.addConstraint(Sketcher.Constraint("Equal", 3, 5))
sketch1.addConstraint(Sketcher.Constraint("Equal", 5, 7))
sketch1.addConstraint(Sketcher.Constraint("Equal", 9, 11))
sketch1.addConstraint(Sketcher.Constraint("Equal", 11, 13))
sketch1.addConstraint(Sketcher.Constraint("Equal", 13, 15))
sketch1.addConstraint(Sketcher.Constraint("Equal", 15, 17))
sketch1.addConstraint(Sketcher.Constraint("Equal", 17, 19))
sketch1.addConstraint(Sketcher.Constraint("Equal", 19, 21))
sketch1.addConstraint(Sketcher.Constraint("Equal", 21, 23))
sketch1.addConstraint(Sketcher.Constraint("Equal", 23, 25))
sketch1.addConstraint(Sketcher.Constraint("Equal", 25, 26))
sketch1.addConstraint(Sketcher.Constraint("Equal", 26, 28))
sketch1.addConstraint(Sketcher.Constraint("Equal", 28, 30))
sketch1.addConstraint(Sketcher.Constraint("Equal", 30, 32))
sketch1.addConstraint(Sketcher.Constraint("Equal", 32, 34))
sketch1.addConstraint(Sketcher.Constraint("Equal", 34, 36))
sketch1.addConstraint(Sketcher.Constraint("Equal", 36, 38))
sketch1.addConstraint(Sketcher.Constraint("Equal", 38, 40))
sketch1.addConstraint(Sketcher.Constraint("Equal", 40, 46))
sketch1.addConstraint(Sketcher.Constraint("Equal", 46, 48))
sketch1.addConstraint(Sketcher.Constraint("Equal", 48, 50))
sketch1.addConstraint(Sketcher.Constraint("Equal", 50, 52))
sketch1.addConstraint(Sketcher.Constraint("Equal", 52, 54))
sketch1.addConstraint(Sketcher.Constraint("Equal", 54, 56))
sketch1.addConstraint(Sketcher.Constraint("Equal", 56, 58))
sketch1.addConstraint(Sketcher.Constraint("Equal", 58, 60))
sketch1.addConstraint(Sketcher.Constraint("Equal", 60, 61))
sketch1.addConstraint(Sketcher.Constraint("Equal", 61, 63))
sketch1.addConstraint(Sketcher.Constraint("Equal", 63, 65))
sketch1.addConstraint(Sketcher.Constraint("Equal", 65, 67))
sketch1.addConstraint(Sketcher.Constraint("Equal", 67, 69))
sketch1.addConstraint(Sketcher.Constraint("Equal", 69, 71))
sketch1.addConstraint(Sketcher.Constraint("Equal", 71, 73))
sketch1.addConstraint(Sketcher.Constraint("Symmetric", 0, 2, 42, 2, -1, 1))
sketch1.addConstraint(Sketcher.Constraint("Symmetric", 58, 1, 62, 2, -1))
sketch1.addConstraint(Sketcher.Constraint("Symmetric", 56, 1, 64, 2, -1))
sketch1.addConstraint(Sketcher.Constraint("Symmetric", 54, 1, 66, 2, -1))
sketch1.addConstraint(Sketcher.Constraint("Symmetric", 52, 1, 68, 2, -1))
sketch1.addConstraint(Sketcher.Constraint("Symmetric", 50, 1, 70, 2, -1))
sketch1.addConstraint(Sketcher.Constraint("Symmetric", 48, 1, 72, 2, -1))
sketch1.addConstraint(Sketcher.Constraint("PointOnObject", 60, 1, -1))
sketch1.addConstraint(Sketcher.Constraint("Horizontal", 9, 3, 11, 3))
sketch1.addConstraint(Sketcher.Constraint("Horizontal", 11, 3, 13, 3))
sketch1.addConstraint(Sketcher.Constraint("Horizontal", 13, 3, 15, 3))
sketch1.addConstraint(Sketcher.Constraint("Horizontal", 15, 3, 17, 3))
sketch1.addConstraint(Sketcher.Constraint("Horizontal", 17, 3, 19, 3))
sketch1.addConstraint(Sketcher.Constraint("Horizontal", 19, 3, 21, 3))
sketch1.addConstraint(Sketcher.Constraint("Horizontal", 21, 3, 23, 3))
sketch1.addConstraint(Sketcher.Constraint("Horizontal", 10, 2, 11, 1))
sketch1.addConstraint(Sketcher.Constraint("Horizontal", 12, 2, 13, 1))
sketch1.addConstraint(Sketcher.Constraint("Horizontal", 14, 2, 15, 1))
sketch1.addConstraint(Sketcher.Constraint("Horizontal", 16, 2, 17, 1))
sketch1.addConstraint(Sketcher.Constraint("Horizontal", 18, 2, 19, 1))
sketch1.addConstraint(Sketcher.Constraint("Horizontal", 20, 2, 21, 1))
sketch1.addConstraint(Sketcher.Constraint("Horizontal", 22, 2, 23, 1))
sketch1.addConstraint(Sketcher.Constraint("Horizontal", 5, 2, 25, 1))
sketch1.addConstraint(Sketcher.Constraint("Horizontal", 8, 2, 26, 1))
sketch1.addConstraint(Sketcher.Constraint("Horizontal", 27, 2, 28, 1))
sketch1.addConstraint(Sketcher.Constraint("Horizontal", 29, 2, 30, 1))
sketch1.addConstraint(Sketcher.Constraint("Horizontal", 31, 2, 32, 1))
sketch1.addConstraint(Sketcher.Constraint("Horizontal", 33, 2, 34, 1))
sketch1.addConstraint(Sketcher.Constraint("Horizontal", 35, 2, 36, 1))
sketch1.addConstraint(Sketcher.Constraint("Horizontal", 37, 2, 38, 1))
sketch1.addConstraint(Sketcher.Constraint("Horizontal", 47, 2, 48, 1))
sketch1.addConstraint(Sketcher.Constraint("Horizontal", 49, 2, 50, 1))
sketch1.addConstraint(Sketcher.Constraint("Horizontal", 51, 2, 52, 1))
sketch1.addConstraint(Sketcher.Constraint("Horizontal", 53, 2, 54, 1))
sketch1.addConstraint(Sketcher.Constraint("Horizontal", 55, 2, 56, 1))
sketch1.addConstraint(Sketcher.Constraint("Horizontal", 57, 2, 58, 1))
sketch1.addConstraint(Sketcher.Constraint("Horizontal", 45, 2, 61, 1))
sketch1.addConstraint(Sketcher.Constraint("Vertical", 40, 3, 48, 3))
sketch1.addConstraint(Sketcher.Constraint("Vertical", 38, 3, 50, 3))
sketch1.addConstraint(Sketcher.Constraint("Vertical", 36, 3, 52, 3))
sketch1.addConstraint(Sketcher.Constraint("Vertical", 32, 3, 54, 3))
sketch1.addConstraint(Sketcher.Constraint("Vertical", 30, 3, 56, 3))
sketch1.addConstraint(Sketcher.Constraint("Vertical", 28, 3, 58, 3))
sketch1.addConstraint(Sketcher.Constraint("Vertical", 8, 2, 9, 1))
sketch1.addConstraint(Sketcher.Constraint("Vertical", 7, 2, 43, 2))
sketch1.addConstraint(Sketcher.Constraint("Vertical", 9, 1, 45, 2))
sketch1.addConstraint(Sketcher.Constraint("Equal", 10, 14))
sketch1.addConstraint(Sketcher.Constraint("Equal", 14, 16))
sketch1.addConstraint(Sketcher.Constraint("Equal", 16, 20))
sketch1.addConstraint(Sketcher.Constraint("Equal", 12, 22))
sketch1.addConstraint(Sketcher.Constraint("Equal", 20, 24))
sketch1.addConstraint(Sketcher.Constraint("Radius", 1, Q("9.999999 mm")))
sketch1.addConstraint(Sketcher.Constraint("Radius", 9, Q("5 mm")))
sketch1.addConstraint(Sketcher.Constraint("DistanceY", 45, 2, -1, 1, Q("3.5 mm")))
sketch1.addConstraint(Sketcher.Constraint("DistanceX", 0, 2, 0, 1, Q("81.289 mm")))
sketch1.addConstraint(Sketcher.Constraint("DistanceY", 2, 2, 2, 1, Q("52.216 mm")))
sketch1.addConstraint(Sketcher.Constraint("DistanceY", 42, 1, 42, 2, Q("32.216 mm")))
sketch1.addConstraint(Sketcher.Constraint("DistanceX", -1, 1, 23, 3, Q("72.99 mm")))
sketch1.addConstraint(Sketcher.Constraint("DistanceX", -1, 1, 13, 3, Q("23.196 mm")))
pad1 = doc.addObject("PartDesign::Pad", "Pad")
body.addObject(pad1)
pad1.Profile = sketch1
pad1.Length = 10

# Sketch on XY plane
sketch2 = doc.addObject("Sketcher::SketchObject", "Sketch001")
body.addObject(sketch2)
sketch2.AttachmentSupport = (doc.XY_Plane, [""])
sketch2.MapMode = "FlatFace"
sketch2.addGeometry(Part.ArcOfCircle(Part.Circle(Vector(-0.000001, -52.216001, 0), Vector(0, 0, 1), 9.999999), math.radians(179.999996), math.radians(270.000004)), False)
sketch2.addGeometry(Part.LineSegment(Vector(-10, -52.216, 0), Vector(-10, 0, 0)), False)
sketch2.addGeometry(Part.ArcOfCircle(Part.Circle(Vector(-0.000001, 0.000001, 0), Vector(0, 0, 1), 9.999999), math.radians(89.999996), math.radians(180.000004)), False)
sketch2.addGeometry(Part.LineSegment(Vector(0, 10, 0), Vector(81.289, 10, 0)), False)
sketch2.addGeometry(Part.ArcOfCircle(Part.Circle(Vector(81.289001, 0.000001, 0), Vector(0, 0, 1), 9.999999), math.radians(-0.000004), math.radians(90.000004)), False)
sketch2.addGeometry(Part.LineSegment(Vector(91.289, 0, 0), Vector(91.289, -52.216, 0)), False)
sketch2.addGeometry(Part.ArcOfCircle(Part.Circle(Vector(81.289001, -52.216001, 0), Vector(0, 0, 1), 9.999999), math.radians(-90.000004), math.radians(0.000004)), False)
sketch2.addGeometry(Part.LineSegment(Vector(81.289, -62.216, 0), Vector(0, -62.216, 0)), False)
sketch2.addConstraint(Sketcher.Constraint("Tangent", 0, 1, 1, 1))
sketch2.addConstraint(Sketcher.Constraint("Tangent", 1, 2, 2, 2))
sketch2.addConstraint(Sketcher.Constraint("Tangent", 2, 1, 3, 1))
sketch2.addConstraint(Sketcher.Constraint("Tangent", 3, 2, 4, 2))
sketch2.addConstraint(Sketcher.Constraint("Tangent", 4, 1, 5, 1))
sketch2.addConstraint(Sketcher.Constraint("Tangent", 5, 2, 6, 2))
sketch2.addConstraint(Sketcher.Constraint("Tangent", 6, 1, 7, 1))
sketch2.addConstraint(Sketcher.Constraint("Tangent", 7, 2, 0, 2))
sketch2.addConstraint(Sketcher.Constraint("Vertical", 1))
sketch2.addConstraint(Sketcher.Constraint("Horizontal", 3))
sketch2.addConstraint(Sketcher.Constraint("Vertical", 5))
sketch2.addConstraint(Sketcher.Constraint("Horizontal", 7))
sketch2.addConstraint(Sketcher.Constraint("Coincident", 2, 3, -1, 1))
sketch2.addConstraint(Sketcher.Constraint("Equal", 0, 2))
sketch2.addConstraint(Sketcher.Constraint("Equal", 2, 4))
sketch2.addConstraint(Sketcher.Constraint("Equal", 4, 6))
sketch2.addConstraint(Sketcher.Constraint("Radius", 0, Q("9.999999 mm")))
sketch2.addConstraint(Sketcher.Constraint("DistanceX", 3, 1, 3, 2, Q("81.289 mm")))
sketch2.addConstraint(Sketcher.Constraint("DistanceY", 1, 1, 1, 2, Q("52.216 mm")))
pad2 = doc.addObject("PartDesign::Pad", "Pad001")
body.addObject(pad2)
pad2.Profile = sketch2
pad2.Length = 3
pad2.Reversed = True

doc.recompute()
